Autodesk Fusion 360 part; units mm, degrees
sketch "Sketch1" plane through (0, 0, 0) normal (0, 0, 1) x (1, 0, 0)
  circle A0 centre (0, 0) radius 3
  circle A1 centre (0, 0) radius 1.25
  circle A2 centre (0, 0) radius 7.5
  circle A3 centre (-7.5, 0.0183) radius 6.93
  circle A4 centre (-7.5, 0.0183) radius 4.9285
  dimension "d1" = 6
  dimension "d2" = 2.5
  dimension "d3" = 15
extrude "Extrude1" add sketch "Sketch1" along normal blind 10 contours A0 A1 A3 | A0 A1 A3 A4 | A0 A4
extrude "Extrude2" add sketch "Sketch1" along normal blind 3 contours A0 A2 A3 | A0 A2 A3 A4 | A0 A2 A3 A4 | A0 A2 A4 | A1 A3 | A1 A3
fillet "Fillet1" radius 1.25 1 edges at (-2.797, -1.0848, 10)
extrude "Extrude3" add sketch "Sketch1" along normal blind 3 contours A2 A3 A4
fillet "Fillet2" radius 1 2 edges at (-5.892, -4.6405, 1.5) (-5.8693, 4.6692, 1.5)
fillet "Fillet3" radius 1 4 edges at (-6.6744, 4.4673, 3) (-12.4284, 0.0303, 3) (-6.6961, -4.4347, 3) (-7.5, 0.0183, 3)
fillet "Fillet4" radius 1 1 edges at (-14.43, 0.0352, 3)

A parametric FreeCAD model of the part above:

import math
import FreeCAD as App
import Part
import Sketcher

V = App.Vector


def edges_at(feature, points):
    """Names of the edges that pass closest to the given points."""
    edges = feature.Shape.Edges
    near = lambda p: min(range(len(edges)), key=lambda i: edges[i].distToShape(Part.Vertex(*p))[0])
    return sorted({f"Edge{near(p) + 1}" for p in points})

doc = App.newDocument("Part")
body = doc.addObject("PartDesign::Body", "Body")

# Sketch on XY plane
sketch1 = body.newObject("Sketcher::SketchObject", "Sketch")
sketch1.AttachmentSupport = (doc.getObject("XY_Plane"), [""])
sketch1.MapMode = "FlatFace"
sketch1.addGeometry([
    Part.Circle(V(0, 0, 0), V(0, 0, 1), 3),
    Part.Circle(V(0, 0, 0), V(0, 0, 1), 1.2),
], False)
sketch1.addConstraint([
    Sketcher.Constraint("Coincident", 0, 3, -1, 1),
    Sketcher.Constraint("Coincident", 1, 3, -1, 1),
    Sketcher.Constraint("Diameter", 0, 6.0),
    Sketcher.Constraint("Diameter", 1, 2.5),
])
pad1 = body.newObject("PartDesign::Pad", "Pad")
pad1.Profile = sketch1
pad1.Length = 10

# Sketch on XY plane
sketch2 = body.newObject("Sketcher::SketchObject", "Sketch001")
sketch2.AttachmentSupport = (doc.getObject("XY_Plane"), [""])
sketch2.MapMode = "FlatFace"
sketch2.addGeometry([
    Part.Circle(V(0, 0, 0), V(0, 0, 1), 7.5),
    Part.Circle(V(0, 0, 0), V(0, 0, 1), 3),
    Part.Circle(V(0, 0, 0), V(0, 0, 1), 1.2),
], False)
sketch2.addConstraint([
    Sketcher.Constraint("Coincident", 0, 3, -1, 1),
    Sketcher.Constraint("Coincident", 1, 3, -1, 1),
    Sketcher.Constraint("Coincident", 2, 3, -1, 1),
    Sketcher.Constraint("Diameter", 0, 15.0),
    Sketcher.Constraint("Diameter", 1, 6.0),
    Sketcher.Constraint("Diameter", 2, 2.5),
])
pad2 = body.newObject("PartDesign::Pad", "Pad001")
pad2.Profile = sketch2
pad2.Length = 3
doc.recompute()

fillet = body.newObject("PartDesign::Fillet", "Fillet")
fillet.Base = (pad2, edges_at(pad2, [(-2.797, -1.085, 10)]))
fillet.Radius = 1.25

# Sketch on XY plane
sketch3 = body.newObject("Sketcher::SketchObject", "Sketch002")
sketch3.AttachmentSupport = (doc.getObject("XY_Plane"), [""])
sketch3.MapMode = "FlatFace"
sketch3.addGeometry([
    Part.ArcOfCircle(Part.Circle(V(0, 0, 0), V(0, 0, 1), 7.5), math.radians(124.83), math.radians(141.5)),
    Part.ArcOfCircle(Part.Circle(V(-7.5, 0, 0), V(0, 0, 1), 6.9), math.radians(62), math.radians(297)),
    Part.ArcOfCircle(Part.Circle(V(0, 0, 0), V(0, 0, 1), 7.5), math.radians(-141.78), math.radians(-125.11)),
    Part.ArcOfCircle(Part.Circle(V(-7.5, 0, 0), V(0, 0, 1), 4.9), math.radians(71), math.radians(289)),
], False)
sketch3.addConstraint([
    Sketcher.Constraint("Coincident", 0, 1, 1, 1),
    Sketcher.Constraint("Coincident", 1, 2, 2, 2),
    Sketcher.Constraint("Coincident", 2, 1, 3, 2),
    Sketcher.Constraint("Coincident", 3, 1, 0, 2),
    Sketcher.Constraint("Coincident", 0, 3, -1, 1),
    Sketcher.Constraint("Coincident", 2, 3, -1, 1),
    Sketcher.Constraint("Coincident", 3, 3, 1, 3),
    Sketcher.Constraint("Equal", 0, 2),
    Sketcher.Constraint("Radius", 0, 7.5),
    Sketcher.Constraint("Radius", 1, 6.93),
    Sketcher.Constraint("DistanceX", 1, 3, -1, 1, 7.5),
    Sketcher.Constraint("Radius", 3, 4.9285),
    Sketcher.Constraint("DistanceX", 1, 2, 0, 1, 0.03),
])
pad3 = body.newObject("PartDesign::Pad", "Pad002")
pad3.Profile = sketch3
pad3.Length = 3
doc.recompute()

fillet2 = body.newObject("PartDesign::Fillet", "Fillet001")
fillet2.Base = (pad3, edges_at(pad3, [(-5.892, -4.641, 1.5), (-5.869, 4.669, 1.5)]))
fillet2.Radius = 1
doc.recompute()

fillet3 = body.newObject("PartDesign::Fillet", "Fillet002")
fillet3.Base = (fillet2, edges_at(fillet2, [
    (-6.674, 4.467, 3),
    (-12.428, 0.03, 3),
    (-6.696, -4.435, 3),
    (-7.5, 0.018, 3),
]))
fillet3.Radius = 1
doc.recompute()

fillet4 = body.newObject("PartDesign::Fillet", "Fillet003")
fillet4.Base = (fillet3, edges_at(fillet3, [(-14.43, 0.035, 3)]))
fillet4.Radius = 1

doc.recompute()
